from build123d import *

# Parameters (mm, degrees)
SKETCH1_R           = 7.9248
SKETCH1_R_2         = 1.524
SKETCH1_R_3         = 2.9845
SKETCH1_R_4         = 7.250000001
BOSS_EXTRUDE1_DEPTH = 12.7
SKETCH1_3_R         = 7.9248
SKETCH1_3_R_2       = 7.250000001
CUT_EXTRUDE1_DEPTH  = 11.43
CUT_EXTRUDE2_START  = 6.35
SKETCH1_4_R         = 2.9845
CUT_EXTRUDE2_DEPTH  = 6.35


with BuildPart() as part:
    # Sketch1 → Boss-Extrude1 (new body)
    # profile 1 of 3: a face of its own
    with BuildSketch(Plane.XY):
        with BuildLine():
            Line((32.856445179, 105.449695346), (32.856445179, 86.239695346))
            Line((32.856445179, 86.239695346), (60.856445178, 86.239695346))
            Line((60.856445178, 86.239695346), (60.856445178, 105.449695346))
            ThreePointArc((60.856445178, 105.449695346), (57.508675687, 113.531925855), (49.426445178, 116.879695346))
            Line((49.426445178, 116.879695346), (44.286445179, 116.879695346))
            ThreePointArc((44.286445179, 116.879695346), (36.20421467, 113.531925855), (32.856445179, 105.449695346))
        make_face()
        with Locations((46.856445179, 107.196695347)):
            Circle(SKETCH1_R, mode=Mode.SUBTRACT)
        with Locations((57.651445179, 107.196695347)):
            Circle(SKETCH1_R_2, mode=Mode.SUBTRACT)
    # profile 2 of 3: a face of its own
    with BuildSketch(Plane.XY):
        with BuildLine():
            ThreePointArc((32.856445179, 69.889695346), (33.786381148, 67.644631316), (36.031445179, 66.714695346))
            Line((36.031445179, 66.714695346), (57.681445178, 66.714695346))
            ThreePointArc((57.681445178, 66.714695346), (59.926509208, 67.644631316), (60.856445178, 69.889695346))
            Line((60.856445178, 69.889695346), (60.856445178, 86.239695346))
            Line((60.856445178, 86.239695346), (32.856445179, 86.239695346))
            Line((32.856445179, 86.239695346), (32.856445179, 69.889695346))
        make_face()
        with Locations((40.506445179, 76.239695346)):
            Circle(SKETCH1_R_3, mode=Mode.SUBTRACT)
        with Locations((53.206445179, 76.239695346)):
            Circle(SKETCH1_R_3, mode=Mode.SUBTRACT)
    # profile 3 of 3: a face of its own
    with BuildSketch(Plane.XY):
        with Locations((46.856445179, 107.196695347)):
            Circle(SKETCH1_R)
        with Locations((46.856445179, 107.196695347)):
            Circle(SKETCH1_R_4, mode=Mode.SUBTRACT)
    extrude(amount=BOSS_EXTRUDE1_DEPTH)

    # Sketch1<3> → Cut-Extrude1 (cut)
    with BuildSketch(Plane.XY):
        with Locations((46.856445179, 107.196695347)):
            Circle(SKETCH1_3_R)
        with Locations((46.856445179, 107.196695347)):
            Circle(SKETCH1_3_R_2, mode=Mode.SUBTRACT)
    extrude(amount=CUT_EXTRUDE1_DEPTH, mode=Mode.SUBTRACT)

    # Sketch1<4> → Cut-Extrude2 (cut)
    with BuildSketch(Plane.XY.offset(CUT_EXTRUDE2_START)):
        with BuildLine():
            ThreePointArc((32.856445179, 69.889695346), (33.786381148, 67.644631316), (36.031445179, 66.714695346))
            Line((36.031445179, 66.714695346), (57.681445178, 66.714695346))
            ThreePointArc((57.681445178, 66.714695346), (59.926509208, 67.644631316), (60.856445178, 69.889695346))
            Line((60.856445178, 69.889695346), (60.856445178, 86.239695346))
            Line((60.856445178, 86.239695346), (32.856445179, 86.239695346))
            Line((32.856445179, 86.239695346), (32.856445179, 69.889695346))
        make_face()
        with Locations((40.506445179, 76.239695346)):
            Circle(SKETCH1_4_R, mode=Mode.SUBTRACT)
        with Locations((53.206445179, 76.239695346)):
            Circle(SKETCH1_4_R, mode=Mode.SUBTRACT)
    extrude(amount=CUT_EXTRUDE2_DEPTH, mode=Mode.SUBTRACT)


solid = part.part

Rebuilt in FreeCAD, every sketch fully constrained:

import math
import FreeCAD as App
import Part
import Sketcher
from FreeCAD import Vector
Q = App.Units.Quantity

doc = App.newDocument("Part")
body = doc.addObject("PartDesign::Body", "Body")

# Sketch on XY plane
sketch1 = body.newObject("Sketcher::SketchObject", "Sketch")
sketch1.AttachmentSupport = (doc.getObject("XY_Plane"), [""])
sketch1.MapMode = "FlatFace"
sketch1.addGeometry(Part.LineSegment(Vector(32.9, 105.4, 0), Vector(32.9, 69.9, 0)), False)
sketch1.addGeometry(Part.ArcOfCircle(Part.Circle(Vector(36, 69.9, 0), Vector(0, 0, 1), 3.2), math.radians(180), math.radians(270)), False)
sketch1.addGeometry(Part.LineSegment(Vector(36, 66.7, 0), Vector(57.7, 66.7, 0)), False)
sketch1.addGeometry(Part.ArcOfCircle(Part.Circle(Vector(57.7, 69.9, 0), Vector(0, 0, 1), 3.2), math.radians(-90), math.radians(0)), False)
sketch1.addGeometry(Part.LineSegment(Vector(60.9, 69.9, 0), Vector(60.9, 105.4, 0)), False)
sketch1.addGeometry(Part.ArcOfCircle(Part.Circle(Vector(49.4, 105.4, 0), Vector(0, 0, 1), 11.4), math.radians(0), math.radians(90)), False)
sketch1.addGeometry(Part.LineSegment(Vector(49.4, 116.9, 0), Vector(44.3, 116.9, 0)), False)
sketch1.addGeometry(Part.ArcOfCircle(Part.Circle(Vector(44.3, 105.4, 0), Vector(0, 0, 1), 11.4), math.radians(90), math.radians(180)), False)
sketch1.addGeometry(Part.Circle(Vector(57.7, 107.2, 0), Vector(0, 0, 1), 1.5), False)
sketch1.addGeometry(Part.Circle(Vector(53.2, 76.2, 0), Vector(0, 0, 1), 3), False)
sketch1.addGeometry(Part.Circle(Vector(40.5, 76.2, 0), Vector(0, 0, 1), 3), False)
sketch1.addGeometry(Part.Circle(Vector(46.9, 107.2, 0), Vector(0, 0, 1), 7.3), False)
sketch1.addConstraint(Sketcher.Constraint("Tangent", 0, 2, 1, 1))
sketch1.addConstraint(Sketcher.Constraint("Tangent", 1, 2, 2, 1))
sketch1.addConstraint(Sketcher.Constraint("Tangent", 2, 2, 3, 1))
sketch1.addConstraint(Sketcher.Constraint("Tangent", 3, 2, 4, 1))
sketch1.addConstraint(Sketcher.Constraint("Tangent", 4, 2, 5, 1))
sketch1.addConstraint(Sketcher.Constraint("Tangent", 5, 2, 6, 1))
sketch1.addConstraint(Sketcher.Constraint("Tangent", 6, 2, 7, 1))
sketch1.addConstraint(Sketcher.Constraint("Tangent", 7, 2, 0, 1))
sketch1.addConstraint(Sketcher.Constraint("Vertical", 0))
sketch1.addConstraint(Sketcher.Constraint("Horizontal", 2))
sketch1.addConstraint(Sketcher.Constraint("Vertical", 4))
sketch1.addConstraint(Sketcher.Constraint("Horizontal", 6))
sketch1.addConstraint(Sketcher.Constraint("Equal", 1, 3))
sketch1.addConstraint(Sketcher.Constraint("Equal", 5, 7))
sketch1.addConstraint(Sketcher.Constraint("Equal", 9, 10))
sketch1.addConstraint(Sketcher.Constraint("Horizontal", 9, 3, 10, 3))
sketch1.addConstraint(Sketcher.Constraint("Horizontal", 8, 3, 11, 3))
sketch1.addConstraint(Sketcher.Constraint("Diameter", 8, Q("0.12 in")))
sketch1.addConstraint(Sketcher.Constraint("Radius", 5, Q("0.45 in")))
sketch1.addConstraint(Sketcher.Constraint("Diameter", 9, Q("0.235 in")))
sketch1.addConstraint(Sketcher.Constraint("DistanceY", 0, 2, 0, 1, Q("1.4 in")))
sketch1.addConstraint(Sketcher.Constraint("Radius", 1, Q("0.125 in")))
sketch1.addConstraint(Sketcher.Constraint("DistanceX", 10, 3, 9, 3, Q("0.5 in")))
sketch1.addConstraint(Sketcher.Constraint("Diameter", 11, Q("14.5 mm")))
sketch1.addConstraint(Sketcher.Constraint("DistanceY", 3, 3, 9, 3, Q("0.25 in")))
sketch1.addConstraint(Sketcher.Constraint("DistanceX", 10, 3, 11, 3, Q("0.25 in")))
sketch1.addConstraint(Sketcher.Constraint("DistanceX", 9, 3, 8, 3, Q("0.175 in")))
sketch1.addConstraint(Sketcher.Constraint("DistanceX", 2, 1, 2, 2, Q("21.65 mm")))
sketch1.addConstraint(Sketcher.Constraint("DistanceX", 5, 3, 8, 3, Q("8.225 mm")))
sketch1.addConstraint(Sketcher.Constraint("DistanceY", 5, 3, 8, 3, Q("1.747 mm")))
sketch1.addConstraint(Sketcher.Constraint("DistanceX", -1, 1, 1, 3, Q("36.031445 mm")))
sketch1.addConstraint(Sketcher.Constraint("DistanceY", -1, 1, 1, 3, Q("69.889695 mm")))
pad1 = body.newObject("PartDesign::Pad", "Pad")
pad1.Profile = sketch1
pad1.Length = Q("0.5 in")

# Sketch on XY plane
sketch2 = body.newObject("Sketcher::SketchObject", "Sketch001")
sketch2.AttachmentSupport = (doc.getObject("XY_Plane"), [""])
sketch2.MapMode = "FlatFace"
sketch2.addGeometry(Part.Circle(Vector(47, 107, 0), Vector(0, 0, 1), 8), False)
sketch2.addGeometry(Part.Circle(Vector(47, 107, 0), Vector(0, 0, 1), 7), False)
sketch2.addConstraint(Sketcher.Constraint("Coincident", 1, 3, 0, 3))
sketch2.addConstraint(Sketcher.Constraint("Diameter", 0, Q("0.624 in")))
sketch2.addConstraint(Sketcher.Constraint("Diameter", 1, Q("14.5 mm")))
sketch2.addConstraint(Sketcher.Constraint("DistanceX", -1, 1, 0, 3, Q("46.856445 mm")))
sketch2.addConstraint(Sketcher.Constraint("DistanceY", -1, 1, 0, 3, Q("107.196695 mm")))
pocket1 = body.newObject("PartDesign::Pocket", "Pocket")
pocket1.Profile = sketch2
pocket1.Length = Q("0.45 in")
pocket1.Reversed = True

# Sketch on XY plane
sketch3 = body.newObject("Sketcher::SketchObject", "Sketch002")
sketch3.AttachmentSupport = (doc.getObject("XY_Plane"), [""])
sketch3.MapMode = "FlatFace"
sketch3.AttachmentOffset = App.Placement(Vector(0, 0, 0.25 * 25.4), App.Rotation())
sketch3.addGeometry(Part.ArcOfCircle(Part.Circle(Vector(36, 69.9, 0), Vector(0, 0, 1), 3.2), math.radians(180), math.radians(270)), False)
sketch3.addGeometry(Part.LineSegment(Vector(36, 66.7, 0), Vector(57.7, 66.7, 0)), False)
sketch3.addGeometry(Part.ArcOfCircle(Part.Circle(Vector(57.7, 69.9, 0), Vector(0, 0, 1), 3.2), math.radians(-90), math.radians(0)), False)
sketch3.addGeometry(Part.LineSegment(Vector(60.9, 69.9, 0), Vector(60.9, 86.2, 0)), False)
sketch3.addGeometry(Part.LineSegment(Vector(60.9, 86.2, 0), Vector(32.9, 86.2, 0)), False)
sketch3.addGeometry(Part.LineSegment(Vector(32.9, 86.2, 0), Vector(32.9, 69.9, 0)), False)
sketch3.addGeometry(Part.Circle(Vector(40.5, 76.2, 0), Vector(0, 0, 1), 3), False)
sketch3.addGeometry(Part.Circle(Vector(53.2, 76.2, 0), Vector(0, 0, 1), 3), False)
sketch3.addConstraint(Sketcher.Constraint("Tangent", 0, 2, 1, 1))
sketch3.addConstraint(Sketcher.Constraint("Tangent", 1, 2, 2, 1))
sketch3.addConstraint(Sketcher.Constraint("Tangent", 2, 2, 3, 1))
sketch3.addConstraint(Sketcher.Constraint("Coincident", 3, 2, 4, 1))
sketch3.addConstraint(Sketcher.Constraint("Coincident", 4, 2, 5, 1))
sketch3.addConstraint(Sketcher.Constraint("Tangent", 5, 2, 0, 1))
sketch3.addConstraint(Sketcher.Constraint("Horizontal", 1))
sketch3.addConstraint(Sketcher.Constraint("Vertical", 3))
sketch3.addConstraint(Sketcher.Constraint("Horizontal", 4))
sketch3.addConstraint(Sketcher.Constraint("Vertical", 5))
sketch3.addConstraint(Sketcher.Constraint("Equal", 0, 2))
sketch3.addConstraint(Sketcher.Constraint("Equal", 6, 7))
sketch3.addConstraint(Sketcher.Constraint("Horizontal", 6, 3, 7, 3))
sketch3.addConstraint(Sketcher.Constraint("Diameter", 6, Q("0.235 in")))
sketch3.addConstraint(Sketcher.Constraint("Radius", 0, Q("0.125 in")))
sketch3.addConstraint(Sketcher.Constraint("DistanceX", 6, 3, 7, 3, Q("0.5 in")))
sketch3.addConstraint(Sketcher.Constraint("DistanceY", 0, 3, 6, 3, Q("0.25 in")))
sketch3.addConstraint(Sketcher.Constraint("DistanceX", 1, 1, 1, 2, Q("21.65 mm")))
sketch3.addConstraint(Sketcher.Constraint("DistanceY", 3, 1, 3, 2, Q("16.35 mm")))
sketch3.addConstraint(Sketcher.Constraint("DistanceX", 0, 3, 6, 3, Q("4.475 mm")))
sketch3.addConstraint(Sketcher.Constraint("DistanceX", -1, 1, 0, 3, Q("36.031445 mm")))
sketch3.addConstraint(Sketcher.Constraint("DistanceY", -1, 1, 0, 3, Q("69.889695 mm")))
pocket2 = body.newObject("PartDesign::Pocket", "Pocket001")
pocket2.Profile = sketch3
pocket2.Length = Q("0.25 in")
pocket2.Reversed = True

doc.recompute()
